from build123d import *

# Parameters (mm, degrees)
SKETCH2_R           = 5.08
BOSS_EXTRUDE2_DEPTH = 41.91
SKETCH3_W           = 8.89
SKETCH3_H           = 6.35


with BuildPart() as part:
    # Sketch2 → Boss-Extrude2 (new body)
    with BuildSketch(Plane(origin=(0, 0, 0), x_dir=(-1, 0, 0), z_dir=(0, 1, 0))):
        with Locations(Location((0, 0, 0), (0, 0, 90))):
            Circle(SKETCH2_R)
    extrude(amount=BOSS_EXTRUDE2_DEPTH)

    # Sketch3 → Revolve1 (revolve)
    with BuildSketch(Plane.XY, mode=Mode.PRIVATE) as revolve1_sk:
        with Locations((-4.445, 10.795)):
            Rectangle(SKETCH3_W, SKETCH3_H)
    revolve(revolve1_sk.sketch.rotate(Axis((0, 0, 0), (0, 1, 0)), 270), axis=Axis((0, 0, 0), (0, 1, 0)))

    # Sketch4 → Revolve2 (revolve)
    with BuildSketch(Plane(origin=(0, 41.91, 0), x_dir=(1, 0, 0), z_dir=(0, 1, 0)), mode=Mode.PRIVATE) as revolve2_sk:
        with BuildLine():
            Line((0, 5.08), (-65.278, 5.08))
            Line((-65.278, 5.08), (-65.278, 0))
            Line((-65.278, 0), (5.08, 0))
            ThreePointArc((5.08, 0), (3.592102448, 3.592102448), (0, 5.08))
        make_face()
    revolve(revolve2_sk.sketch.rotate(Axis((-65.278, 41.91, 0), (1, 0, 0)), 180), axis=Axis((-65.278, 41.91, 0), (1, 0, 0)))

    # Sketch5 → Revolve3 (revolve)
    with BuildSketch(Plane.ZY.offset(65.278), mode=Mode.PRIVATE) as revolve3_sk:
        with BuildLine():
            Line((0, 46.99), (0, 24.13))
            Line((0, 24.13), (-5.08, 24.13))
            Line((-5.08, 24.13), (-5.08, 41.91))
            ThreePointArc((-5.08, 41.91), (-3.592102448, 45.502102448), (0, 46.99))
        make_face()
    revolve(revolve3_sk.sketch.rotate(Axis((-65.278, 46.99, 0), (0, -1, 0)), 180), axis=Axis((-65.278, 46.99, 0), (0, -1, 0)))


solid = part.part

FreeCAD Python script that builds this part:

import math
import FreeCAD as App
import Part
import Sketcher

V = App.Vector
Q = App.Units.Quantity

doc = App.newDocument("Part")
params = doc.addObject("Spreadsheet::Sheet", "Params")
for row, (alias, value) in enumerate([
    ("sketch1_diameter", "0.4 in"),
    ("pad1_length", "1.65 in"),
    ("sketch2_width", "0.35 in"),
    ("sketch2_height", "0.25 in"),
    ("revolution_angle", "360 deg"),
    ("sketch3_radius", "0.2 in"),
    ("sketch3_width", "2.57 in"),
    ("revolution2_angle", "360 deg"),
    ("sketch4_radius", "0.2 in"),
    ("sketch4_width", "0.9 in"),
    ("revolution3_angle", "360 deg"),
], start=1):
    params.set(f"A{row}", alias)
    params.set(f"B{row}", "=" + value)
    params.setAlias(f"B{row}", alias)

body = doc.addObject("PartDesign::Body", "Body")

# Sketch on XZ plane
sketch1 = body.newObject("Sketcher::SketchObject", "Sketch")
sketch1.AttachmentSupport = (doc.getObject("XZ_Plane"), [""])
sketch1.MapMode = "FlatFace"
sketch1.addGeometry(Part.Circle(V(0, 0, 0), V(0, 0, 1), 5), False)
sketch1.addConstraint([
    Sketcher.Constraint("Coincident", 0, 3, -1, 1),
    Sketcher.Constraint("Diameter", 0, Q("0.4 in")),
])
sketch1.setExpression("Constraints[1]", "Params.sketch1_diameter")
pad1 = body.newObject("PartDesign::Pad", "Pad")
pad1.Profile = sketch1
pad1.setExpression("Length", "Params.pad1_length")
pad1.Reversed = True

# Sketch on XY plane
sketch2 = body.newObject("Sketcher::SketchObject", "Sketch001")
sketch2.AttachmentSupport = (doc.getObject("XY_Plane"), [""])
sketch2.MapMode = "FlatFace"
sketch2.addGeometry([
    Part.LineSegment(V(-9, 14, 0), V(-9, 8, 0)),
    Part.LineSegment(V(-9, 8, 0), V(0, 8, 0)),
    Part.LineSegment(V(0, 8, 0), V(0, 14, 0)),
    Part.LineSegment(V(0, 14, 0), V(-9, 14, 0)),
], False)
sketch2.addConstraint([
    Sketcher.Constraint("Coincident", 0, 2, 1, 1),
    Sketcher.Constraint("Coincident", 1, 2, 2, 1),
    Sketcher.Constraint("Coincident", 2, 2, 3, 1),
    Sketcher.Constraint("Coincident", 3, 2, 0, 1),
    Sketcher.Constraint("Vertical", 0),
    Sketcher.Constraint("Horizontal", 1),
    Sketcher.Constraint("Vertical", 2),
    Sketcher.Constraint("Horizontal", 3),
    Sketcher.Constraint("PointOnObject", 1, 2, -2),
    Sketcher.Constraint("DistanceX", 1, 1, 1, 2, Q("0.35 in")),
    Sketcher.Constraint("DistanceY", 0, 2, 0, 1, Q("0.25 in")),
    Sketcher.Constraint("DistanceY", -1, 1, 0, 2, Q("0.3 in")),
])
sketch2.setExpression("Constraints[9]", "Params.sketch2_width")
sketch2.setExpression("Constraints[10]", "Params.sketch2_height")
revolution = body.newObject("PartDesign::Revolution", "Revolution")
revolution.Profile = sketch2
revolution.ReferenceAxis = (sketch2, ["V_Axis"])
revolution.setExpression("Angle", "Params.revolution_angle")

# Sketch on XZ plane
sketch3 = body.newObject("Sketcher::SketchObject", "Sketch002")
sketch3.AttachmentSupport = (doc.getObject("XZ_Plane"), [""])
sketch3.MapMode = "FlatFace"
sketch3.AttachmentOffset = App.Placement(V(0, 0, -1.65 * 25.4), App.Rotation())
sketch3.addGeometry([
    Part.LineSegment(V(0, -5, 0), V(-65, -5, 0)),
    Part.LineSegment(V(-65, -5, 0), V(-65, 0, 0)),
    Part.LineSegment(V(-65, 0, 0), V(5, 0, 0)),
    Part.ArcOfCircle(Part.Circle(V(0, 0, 0), V(0, 0, 1), 5), math.radians(-90), math.radians(0)),
], False)
sketch3.addConstraint([
    Sketcher.Constraint("Coincident", 0, 2, 1, 1),
    Sketcher.Constraint("Coincident", 1, 2, 2, 1),
    Sketcher.Constraint("Coincident", 2, 2, 3, 2),
    Sketcher.Constraint("Tangent", 3, 1, 0, 1),
    Sketcher.Constraint("Horizontal", 0),
    Sketcher.Constraint("Vertical", 1),
    Sketcher.Constraint("Horizontal", 2),
    Sketcher.Constraint("Coincident", 3, 3, -1, 1),
    Sketcher.Constraint("PointOnObject", 1, 2, -1),
    Sketcher.Constraint("Radius", 3, Q("0.2 in")),
    Sketcher.Constraint("DistanceX", 0, 2, 0, 1, Q("2.57 in")),
])
sketch3.setExpression("Constraints[9]", "Params.sketch3_radius")
sketch3.setExpression("Constraints[10]", "Params.sketch3_width")
revolution2 = body.newObject("PartDesign::Revolution", "Revolution001")
revolution2.Profile = sketch3
revolution2.ReferenceAxis = (sketch3, ["H_Axis"])
revolution2.setExpression("Angle", "Params.revolution2_angle")

# Sketch on YZ plane
sketch4 = body.newObject("Sketcher::SketchObject", "Sketch003")
sketch4.AttachmentSupport = (doc.getObject("YZ_Plane"), [""])
sketch4.MapMode = "FlatFace"
sketch4.AttachmentOffset = App.Placement(V(0, 0, -2.57 * 25.4), App.Rotation())
sketch4.addGeometry([
    Part.LineSegment(V(24, 0, 0), V(47, 0, 0)),
    Part.ArcOfCircle(Part.Circle(V(42, 0, 0), V(0, 0, 1), 5), math.radians(-90), math.radians(0)),
    Part.LineSegment(V(42, -5, 0), V(24, -5, 0)),
    Part.LineSegment(V(24, -5, 0), V(24, 0, 0)),
], False)
sketch4.addConstraint([
    Sketcher.Constraint("Coincident", 0, 2, 1, 2),
    Sketcher.Constraint("Tangent", 1, 1, 2, 1),
    Sketcher.Constraint("Coincident", 2, 2, 3, 1),
    Sketcher.Constraint("Coincident", 3, 2, 0, 1),
    Sketcher.Constraint("Horizontal", 0),
    Sketcher.Constraint("Horizontal", 2),
    Sketcher.Constraint("Vertical", 3),
    Sketcher.Constraint("PointOnObject", 1, 3, -1),
    Sketcher.Constraint("PointOnObject", 0, 2, -1),
    Sketcher.Constraint("Radius", 1, Q("0.2 in")),
    Sketcher.Constraint("DistanceX", 0, 1, 0, 2, Q("0.9 in")),
    Sketcher.Constraint("DistanceX", -1, 1, 1, 3, Q("1.65 in")),
])
sketch4.setExpression("Constraints[9]", "Params.sketch4_radius")
sketch4.setExpression("Constraints[10]", "Params.sketch4_width")
revolution3 = body.newObject("PartDesign::Revolution", "Revolution002")
revolution3.Profile = sketch4
revolution3.ReferenceAxis = (sketch4, ["H_Axis"])
revolution3.setExpression("Angle", "Params.revolution3_angle")

doc.recompute()
